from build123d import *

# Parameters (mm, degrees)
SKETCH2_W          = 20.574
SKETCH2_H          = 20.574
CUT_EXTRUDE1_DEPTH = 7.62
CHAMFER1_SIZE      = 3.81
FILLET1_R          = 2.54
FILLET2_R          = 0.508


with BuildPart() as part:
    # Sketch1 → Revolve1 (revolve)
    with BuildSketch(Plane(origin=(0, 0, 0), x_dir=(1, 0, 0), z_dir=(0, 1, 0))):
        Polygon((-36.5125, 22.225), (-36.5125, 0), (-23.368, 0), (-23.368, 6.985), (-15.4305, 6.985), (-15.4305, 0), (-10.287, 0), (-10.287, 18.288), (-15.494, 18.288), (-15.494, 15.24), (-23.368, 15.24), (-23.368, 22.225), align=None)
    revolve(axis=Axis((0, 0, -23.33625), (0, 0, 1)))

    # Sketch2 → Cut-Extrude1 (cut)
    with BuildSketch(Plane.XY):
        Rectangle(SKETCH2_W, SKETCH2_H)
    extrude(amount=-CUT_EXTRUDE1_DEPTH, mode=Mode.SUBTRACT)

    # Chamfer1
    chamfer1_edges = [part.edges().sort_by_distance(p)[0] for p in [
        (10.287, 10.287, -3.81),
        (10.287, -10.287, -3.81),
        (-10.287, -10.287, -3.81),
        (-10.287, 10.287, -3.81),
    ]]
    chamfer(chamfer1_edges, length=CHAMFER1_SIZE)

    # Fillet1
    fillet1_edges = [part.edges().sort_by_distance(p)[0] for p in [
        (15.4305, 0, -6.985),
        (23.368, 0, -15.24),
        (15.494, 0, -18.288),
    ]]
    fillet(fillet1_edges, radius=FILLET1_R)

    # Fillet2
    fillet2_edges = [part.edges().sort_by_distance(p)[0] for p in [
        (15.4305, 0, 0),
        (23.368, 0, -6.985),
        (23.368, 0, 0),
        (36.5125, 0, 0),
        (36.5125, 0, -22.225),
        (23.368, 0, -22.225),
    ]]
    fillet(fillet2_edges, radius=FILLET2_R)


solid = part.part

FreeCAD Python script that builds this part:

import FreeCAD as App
import Part
import Sketcher

V = App.Vector
Q = App.Units.Quantity


def edges_at(feature, points):
    """Names of the edges that pass closest to the given points."""
    edges = feature.Shape.Edges
    near = lambda p: min(range(len(edges)), key=lambda i: edges[i].distToShape(Part.Vertex(*p))[0])
    return sorted({f"Edge{near(p) + 1}" for p in points})

doc = App.newDocument("Part")
params = doc.addObject("Spreadsheet::Sheet", "Params")
for row, (alias, value) in enumerate([
    ("sketch1_width", "0.31 in"),
    ("sketch1_height", "0.72 in"),
    ("sketch1_height2", "0.12 in"),
    ("sketch1_width2", "0.3125 in"),
    ("sketch1_width3", "0.205 in"),
    ("revolution_angle", "360 deg"),
    ("sketch2_width", "0.81 in"),
    ("pocket1_length", "0.3 in"),
    ("chamfer_size", "0.15 in"),
    ("fillet_radius", "0.1 in"),
    ("fillet2_radius", "0.02 in"),
], start=1):
    params.set(f"A{row}", alias)
    params.set(f"B{row}", "=" + value)
    params.setAlias(f"B{row}", alias)

body = doc.addObject("PartDesign::Body", "Body")

# Sketch on XZ plane
sketch1 = body.newObject("Sketcher::SketchObject", "Sketch")
sketch1.AttachmentSupport = (doc.getObject("XZ_Plane"), [""])
sketch1.MapMode = "FlatFace"
sketch1.addGeometry([
    Part.LineSegment(V(-36.5, -22.2, 0), V(-36.5, 0, 0)),  # 0
    Part.LineSegment(V(-36.5, 0, 0), V(-23.4, 0, 0)),  # 1
    Part.LineSegment(V(-23.4, 0, 0), V(-23.4, -7, 0)),  # 2
    Part.LineSegment(V(-23.4, -7, 0), V(-15.4, -7, 0)),  # 3
    Part.LineSegment(V(-15.4, -7, 0), V(-15.4, 0, 0)),  # 4
    Part.LineSegment(V(-15.4, 0, 0), V(-10.3, 0, 0)),  # 5
    Part.LineSegment(V(-10.3, 0, 0), V(-10.3, -18.3, 0)),  # 6
    Part.LineSegment(V(-10.3, -18.3, 0), V(-15.5, -18.3, 0)),  # 7
    Part.LineSegment(V(-15.5, -18.3, 0), V(-15.5, -15.2, 0)),  # 8
    Part.LineSegment(V(-15.5, -15.2, 0), V(-23.4, -15.2, 0)),  # 9
    Part.LineSegment(V(-23.4, -15.2, 0), V(-23.4, -22.2, 0)),  # 10
    Part.LineSegment(V(-23.4, -22.2, 0), V(-36.5, -22.2, 0)),  # 11
], False)
sketch1.addConstraint([
    Sketcher.Constraint("Coincident", 0, 2, 1, 1),
    Sketcher.Constraint("Coincident", 1, 2, 2, 1),
    Sketcher.Constraint("Coincident", 2, 2, 3, 1),
    Sketcher.Constraint("Coincident", 3, 2, 4, 1),
    Sketcher.Constraint("Coincident", 4, 2, 5, 1),
    Sketcher.Constraint("Coincident", 5, 2, 6, 1),
    Sketcher.Constraint("Coincident", 6, 2, 7, 1),
    Sketcher.Constraint("Coincident", 7, 2, 8, 1),
    Sketcher.Constraint("Coincident", 8, 2, 9, 1),
    Sketcher.Constraint("Coincident", 9, 2, 10, 1),
    Sketcher.Constraint("Coincident", 10, 2, 11, 1),
    Sketcher.Constraint("Coincident", 11, 2, 0, 1),
    Sketcher.Constraint("Vertical", 0),
    Sketcher.Constraint("Horizontal", 1),
    Sketcher.Constraint("Vertical", 2),
    Sketcher.Constraint("Horizontal", 3),
    Sketcher.Constraint("Vertical", 4),
    Sketcher.Constraint("Horizontal", 5),
    Sketcher.Constraint("Vertical", 6),
    Sketcher.Constraint("Horizontal", 7),
    Sketcher.Constraint("Vertical", 8),
    Sketcher.Constraint("Horizontal", 9),
    Sketcher.Constraint("Vertical", 10),
    Sketcher.Constraint("Horizontal", 11),
    Sketcher.Constraint("PointOnObject", 0, 2, -1),
    Sketcher.Constraint("PointOnObject", 4, 2, -1),
    Sketcher.Constraint("Vertical", 2, 2, 9, 2),
    Sketcher.Constraint("Equal", 4, 10),
    Sketcher.Constraint("DistanceX", 9, 2, 9, 1, Q("0.31 in")),
    Sketcher.Constraint("DistanceY", 6, 2, 6, 1, Q("0.72 in")),
    Sketcher.Constraint("DistanceY", 8, 1, 8, 2, Q("0.12 in")),
    Sketcher.Constraint("DistanceX", 3, 1, 3, 2, Q("0.3125 in")),
    Sketcher.Constraint("DistanceX", 7, 2, 7, 1, Q("0.205 in")),
    Sketcher.Constraint("DistanceY", 0, 1, 0, 2, Q("0.875 in")),
    Sketcher.Constraint("DistanceX", 1, 2, -1, 1, Q("0.92 in")),
    Sketcher.Constraint("DistanceX", 0, 2, 3, 2, Q("0.83 in")),
])
sketch1.setExpression("Constraints[28]", "Params.sketch1_width")
sketch1.setExpression("Constraints[29]", "Params.sketch1_height")
sketch1.setExpression("Constraints[30]", "Params.sketch1_height2")
sketch1.setExpression("Constraints[31]", "Params.sketch1_width2")
sketch1.setExpression("Constraints[32]", "Params.sketch1_width3")
revolution = body.newObject("PartDesign::Revolution", "Revolution")
revolution.Profile = sketch1
revolution.ReferenceAxis = (sketch1, ["V_Axis"])
revolution.setExpression("Angle", "Params.revolution_angle")

# Sketch on XY plane
sketch2 = body.newObject("Sketcher::SketchObject", "Sketch001")
sketch2.AttachmentSupport = (doc.getObject("XY_Plane"), [""])
sketch2.MapMode = "FlatFace"
sketch2.addGeometry([
    Part.LineSegment(V(-10, 10, 0), V(-10, -10, 0)),
    Part.LineSegment(V(-10, -10, 0), V(10, -10, 0)),
    Part.LineSegment(V(10, -10, 0), V(10, 10, 0)),
    Part.LineSegment(V(10, 10, 0), V(-10, 10, 0)),
], False)
sketch2.addConstraint([
    Sketcher.Constraint("Coincident", 0, 2, 1, 1),
    Sketcher.Constraint("Coincident", 1, 2, 2, 1),
    Sketcher.Constraint("Coincident", 2, 2, 3, 1),
    Sketcher.Constraint("Coincident", 3, 2, 0, 1),
    Sketcher.Constraint("Vertical", 0),
    Sketcher.Constraint("Horizontal", 1),
    Sketcher.Constraint("Vertical", 2),
    Sketcher.Constraint("Horizontal", 3),
    Sketcher.Constraint("Symmetric", 0, 2, 2, 2, -1, 1),
    Sketcher.Constraint("Equal", 3, 0),
    Sketcher.Constraint("DistanceX", 1, 1, 1, 2, Q("0.81 in")),
])
sketch2.setExpression("Constraints[10]", "Params.sketch2_width")
pocket1 = body.newObject("PartDesign::Pocket", "Pocket")
pocket1.Profile = sketch2
pocket1.setExpression("Length", "Params.pocket1_length")
doc.recompute()

chamfer = body.newObject("PartDesign::Chamfer", "Chamfer")
chamfer.Base = (pocket1, edges_at(pocket1, [
    (10.287, 10.287, -3.81),
    (10.287, -10.287, -3.81),
    (-10.287, -10.287, -3.81),
    (-10.287, 10.287, -3.81),
]))
chamfer.setExpression("Size", "Params.chamfer_size")
doc.recompute()

fillet = body.newObject("PartDesign::Fillet", "Fillet")
fillet.Base = (chamfer, edges_at(chamfer, [(15.431, 0, -6.985), (23.368, 0, -15.24), (15.494, 0, -18.288)]))
fillet.setExpression("Radius", "Params.fillet_radius")
doc.recompute()

fillet2 = body.newObject("PartDesign::Fillet", "Fillet001")
fillet2.Base = (fillet, edges_at(fillet, [
    (15.431, 0, 0),
    (23.368, 0, -6.985),
    (23.368, 0, 0),
    (36.513, 0, 0),
    (36.513, 0, -22.225),
    (23.368, 0, -22.225),
]))
fillet2.setExpression("Radius", "Params.fillet2_radius")

doc.recompute()
